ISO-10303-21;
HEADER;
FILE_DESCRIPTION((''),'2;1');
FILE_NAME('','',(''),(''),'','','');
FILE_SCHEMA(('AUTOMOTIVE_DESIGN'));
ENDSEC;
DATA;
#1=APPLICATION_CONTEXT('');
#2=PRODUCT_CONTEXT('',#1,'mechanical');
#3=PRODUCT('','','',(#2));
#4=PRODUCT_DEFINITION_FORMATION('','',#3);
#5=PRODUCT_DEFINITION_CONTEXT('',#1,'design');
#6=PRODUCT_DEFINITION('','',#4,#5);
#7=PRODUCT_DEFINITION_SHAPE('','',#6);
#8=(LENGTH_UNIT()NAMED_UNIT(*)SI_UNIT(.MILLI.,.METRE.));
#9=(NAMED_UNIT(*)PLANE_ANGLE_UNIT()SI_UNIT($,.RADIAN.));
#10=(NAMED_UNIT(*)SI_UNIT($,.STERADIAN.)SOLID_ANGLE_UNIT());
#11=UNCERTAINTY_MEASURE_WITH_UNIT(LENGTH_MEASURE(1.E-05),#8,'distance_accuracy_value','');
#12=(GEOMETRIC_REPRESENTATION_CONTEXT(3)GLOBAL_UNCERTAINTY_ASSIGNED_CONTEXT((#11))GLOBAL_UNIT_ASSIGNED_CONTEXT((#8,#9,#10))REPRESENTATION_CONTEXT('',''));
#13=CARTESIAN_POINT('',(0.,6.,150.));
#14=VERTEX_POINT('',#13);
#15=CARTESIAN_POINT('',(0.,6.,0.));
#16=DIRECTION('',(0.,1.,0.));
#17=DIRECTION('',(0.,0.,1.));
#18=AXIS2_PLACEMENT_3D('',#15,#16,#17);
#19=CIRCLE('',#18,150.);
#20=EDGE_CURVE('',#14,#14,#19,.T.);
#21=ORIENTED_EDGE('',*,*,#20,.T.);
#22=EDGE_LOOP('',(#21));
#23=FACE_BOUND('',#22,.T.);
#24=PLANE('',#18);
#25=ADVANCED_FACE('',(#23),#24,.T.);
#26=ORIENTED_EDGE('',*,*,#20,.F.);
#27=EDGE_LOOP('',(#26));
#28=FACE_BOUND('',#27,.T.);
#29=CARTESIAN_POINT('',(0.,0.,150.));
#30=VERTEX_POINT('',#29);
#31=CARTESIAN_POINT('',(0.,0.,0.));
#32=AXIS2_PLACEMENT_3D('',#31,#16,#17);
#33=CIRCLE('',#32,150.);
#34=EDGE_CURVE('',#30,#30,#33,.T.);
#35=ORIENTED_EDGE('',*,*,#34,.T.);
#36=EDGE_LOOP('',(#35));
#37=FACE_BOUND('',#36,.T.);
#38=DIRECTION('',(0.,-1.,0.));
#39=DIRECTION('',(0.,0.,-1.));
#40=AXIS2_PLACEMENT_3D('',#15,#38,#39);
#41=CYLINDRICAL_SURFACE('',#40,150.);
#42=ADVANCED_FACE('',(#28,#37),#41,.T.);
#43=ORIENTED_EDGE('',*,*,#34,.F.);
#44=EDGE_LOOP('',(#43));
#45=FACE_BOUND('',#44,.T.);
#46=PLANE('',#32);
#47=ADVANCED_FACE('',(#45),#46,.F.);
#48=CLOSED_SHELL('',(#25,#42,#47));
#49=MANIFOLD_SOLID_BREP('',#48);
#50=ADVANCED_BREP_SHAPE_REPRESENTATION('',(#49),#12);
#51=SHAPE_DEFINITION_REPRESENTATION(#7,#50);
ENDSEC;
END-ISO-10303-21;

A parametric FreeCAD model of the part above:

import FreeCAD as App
import Part
import Sketcher

V = App.Vector

doc = App.newDocument("Part")
body = doc.addObject("PartDesign::Body", "Body")

sketch1 = doc.addObject("Sketcher::SketchObject", "Sketch")
body.addObject(sketch1)
sketch1.AttachmentSupport = (doc.XZ_Plane, [""])
sketch1.MapMode = "FlatFace"
sketch1.addGeometry(Part.Circle(V(0, 0, 0), V(0, 0, 1), 150), False)
sketch1.addConstraint([
    Sketcher.Constraint("Coincident", 0, 3, -1, 1),
    Sketcher.Constraint("Diameter", 0, 300.0),
])
pad1 = doc.addObject("PartDesign::Pad", "Pad")
body.addObject(pad1)
pad1.Profile = sketch1
pad1.Length = 6
pad1.Reversed = True

doc.recompute()
